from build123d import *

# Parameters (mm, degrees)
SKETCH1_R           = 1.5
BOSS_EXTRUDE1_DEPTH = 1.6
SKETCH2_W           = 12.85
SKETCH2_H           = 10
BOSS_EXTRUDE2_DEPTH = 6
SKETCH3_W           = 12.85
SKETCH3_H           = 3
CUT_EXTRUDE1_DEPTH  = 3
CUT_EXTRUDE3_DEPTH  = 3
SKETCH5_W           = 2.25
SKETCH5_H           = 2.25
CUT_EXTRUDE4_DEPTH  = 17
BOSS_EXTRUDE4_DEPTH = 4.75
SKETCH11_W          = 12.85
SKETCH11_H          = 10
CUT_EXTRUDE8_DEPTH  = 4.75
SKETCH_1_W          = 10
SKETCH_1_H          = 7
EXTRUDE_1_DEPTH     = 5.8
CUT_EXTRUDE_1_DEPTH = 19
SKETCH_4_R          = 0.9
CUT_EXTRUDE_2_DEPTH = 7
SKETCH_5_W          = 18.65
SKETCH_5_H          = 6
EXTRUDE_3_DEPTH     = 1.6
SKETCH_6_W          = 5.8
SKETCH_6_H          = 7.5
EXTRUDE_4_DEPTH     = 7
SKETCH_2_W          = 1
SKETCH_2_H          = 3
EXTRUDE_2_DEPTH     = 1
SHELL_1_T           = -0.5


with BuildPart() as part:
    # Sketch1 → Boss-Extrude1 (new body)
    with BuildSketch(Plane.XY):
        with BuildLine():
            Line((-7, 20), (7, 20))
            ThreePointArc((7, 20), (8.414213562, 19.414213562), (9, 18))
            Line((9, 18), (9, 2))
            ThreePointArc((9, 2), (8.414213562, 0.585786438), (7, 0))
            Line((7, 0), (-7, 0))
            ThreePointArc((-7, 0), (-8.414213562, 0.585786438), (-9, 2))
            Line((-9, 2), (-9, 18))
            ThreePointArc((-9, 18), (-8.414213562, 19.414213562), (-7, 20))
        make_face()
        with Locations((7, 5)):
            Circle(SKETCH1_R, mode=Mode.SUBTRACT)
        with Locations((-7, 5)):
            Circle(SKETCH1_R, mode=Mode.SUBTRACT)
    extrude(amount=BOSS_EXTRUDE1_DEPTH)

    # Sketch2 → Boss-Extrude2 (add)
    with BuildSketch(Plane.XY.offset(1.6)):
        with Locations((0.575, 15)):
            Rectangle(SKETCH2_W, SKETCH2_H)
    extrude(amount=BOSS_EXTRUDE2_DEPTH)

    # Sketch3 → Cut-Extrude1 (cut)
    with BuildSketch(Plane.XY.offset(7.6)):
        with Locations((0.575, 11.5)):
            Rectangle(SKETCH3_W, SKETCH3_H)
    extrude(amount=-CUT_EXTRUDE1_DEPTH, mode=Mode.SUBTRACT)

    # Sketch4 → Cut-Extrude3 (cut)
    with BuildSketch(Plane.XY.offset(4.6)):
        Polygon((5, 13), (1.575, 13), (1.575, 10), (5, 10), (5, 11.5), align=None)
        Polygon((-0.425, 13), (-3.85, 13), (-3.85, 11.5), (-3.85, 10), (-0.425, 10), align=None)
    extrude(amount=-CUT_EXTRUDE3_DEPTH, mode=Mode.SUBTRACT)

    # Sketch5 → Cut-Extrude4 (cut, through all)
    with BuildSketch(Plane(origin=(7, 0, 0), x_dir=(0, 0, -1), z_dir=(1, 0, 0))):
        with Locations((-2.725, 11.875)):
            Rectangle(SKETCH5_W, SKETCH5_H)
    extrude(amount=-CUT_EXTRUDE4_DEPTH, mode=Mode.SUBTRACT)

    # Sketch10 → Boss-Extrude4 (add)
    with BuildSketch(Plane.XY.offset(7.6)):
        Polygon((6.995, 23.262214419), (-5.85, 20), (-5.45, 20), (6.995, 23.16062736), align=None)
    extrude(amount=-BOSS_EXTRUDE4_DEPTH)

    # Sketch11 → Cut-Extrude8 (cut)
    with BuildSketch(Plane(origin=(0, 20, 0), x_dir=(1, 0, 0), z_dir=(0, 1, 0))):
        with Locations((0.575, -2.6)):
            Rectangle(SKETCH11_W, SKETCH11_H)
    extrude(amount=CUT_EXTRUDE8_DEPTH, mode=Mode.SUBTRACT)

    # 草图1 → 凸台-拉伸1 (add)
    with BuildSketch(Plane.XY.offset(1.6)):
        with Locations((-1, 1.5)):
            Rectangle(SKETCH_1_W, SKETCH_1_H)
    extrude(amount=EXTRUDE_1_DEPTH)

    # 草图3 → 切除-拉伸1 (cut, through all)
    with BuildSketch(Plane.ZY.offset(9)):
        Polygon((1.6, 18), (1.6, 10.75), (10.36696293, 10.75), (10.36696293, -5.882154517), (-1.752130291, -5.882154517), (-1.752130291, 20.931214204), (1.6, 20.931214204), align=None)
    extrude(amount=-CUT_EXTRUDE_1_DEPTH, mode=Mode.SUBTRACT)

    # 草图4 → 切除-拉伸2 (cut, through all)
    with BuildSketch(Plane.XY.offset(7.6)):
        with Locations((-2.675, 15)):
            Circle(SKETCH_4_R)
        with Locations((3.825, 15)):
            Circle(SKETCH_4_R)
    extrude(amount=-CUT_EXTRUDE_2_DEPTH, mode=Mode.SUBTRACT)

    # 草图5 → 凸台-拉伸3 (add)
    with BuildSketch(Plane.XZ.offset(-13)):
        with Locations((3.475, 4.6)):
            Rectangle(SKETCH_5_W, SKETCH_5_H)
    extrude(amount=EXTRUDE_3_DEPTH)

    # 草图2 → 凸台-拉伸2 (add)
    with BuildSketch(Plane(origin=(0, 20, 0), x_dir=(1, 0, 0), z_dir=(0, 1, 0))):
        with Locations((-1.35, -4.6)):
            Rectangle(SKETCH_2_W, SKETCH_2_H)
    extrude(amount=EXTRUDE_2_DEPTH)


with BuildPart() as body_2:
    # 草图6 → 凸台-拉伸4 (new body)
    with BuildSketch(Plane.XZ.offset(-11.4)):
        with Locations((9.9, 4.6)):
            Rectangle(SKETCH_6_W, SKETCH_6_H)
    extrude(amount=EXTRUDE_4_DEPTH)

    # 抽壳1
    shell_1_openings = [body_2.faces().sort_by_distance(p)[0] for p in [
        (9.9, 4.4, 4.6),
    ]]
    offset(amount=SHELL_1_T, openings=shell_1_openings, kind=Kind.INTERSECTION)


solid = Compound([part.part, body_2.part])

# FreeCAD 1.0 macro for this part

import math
import FreeCAD as App
import Part
import Sketcher

V = App.Vector
Q = App.Units.Quantity


def faces_at(feature, points):
    """Names of the faces that lie closest to the given points."""
    faces = feature.Shape.Faces
    near = lambda p: min(range(len(faces)), key=lambda i: faces[i].distToShape(Part.Vertex(*p))[0])
    return sorted({f"Face{near(p) + 1}" for p in points})


def add_polygon(sketch, points):
    """Adds a closed chain of lines whose ends are joined by coincident constraints."""
    first, n = sketch.GeometryCount, len(points)
    for a, b in zip(points, points[1:] + points[:1]):
        sketch.addGeometry(Part.LineSegment(App.Vector(*a, 0), App.Vector(*b, 0)), False)
    for i in range(n):
        sketch.addConstraint(Sketcher.Constraint("Coincident", first + i, 2, first + (i + 1) % n, 1))

doc = App.newDocument("Part")
body = doc.addObject("PartDesign::Body", "Body")

sketch1 = body.newObject("Sketcher::SketchObject", "Sketch")
sketch1.AttachmentSupport = (doc.getObject("XY_Plane"), [""])
sketch1.MapMode = "FlatFace"
sketch1.addGeometry([
    Part.LineSegment(V(7, 20, 0), V(-7, 20, 0)),
    Part.ArcOfCircle(Part.Circle(V(-7, 18, 0), V(0, 0, 1), 2), math.radians(90), math.radians(180)),
    Part.LineSegment(V(-9, 18, 0), V(-9, 2, 0)),
    Part.ArcOfCircle(Part.Circle(V(-7, 2, 0), V(0, 0, 1), 2), math.radians(-180), math.radians(-90)),
    Part.LineSegment(V(-7, 0, 0), V(7, 0, 0)),
    Part.ArcOfCircle(Part.Circle(V(7, 2, 0), V(0, 0, 1), 2), math.radians(-90), math.radians(0)),
    Part.LineSegment(V(9, 2, 0), V(9, 18, 0)),
    Part.ArcOfCircle(Part.Circle(V(7, 18, 0), V(0, 0, 1), 2), math.radians(0), math.radians(90)),
    Part.Circle(V(7, 5, 0), V(0, 0, 1), 1.5),
    Part.Circle(V(-7, 5, 0), V(0, 0, 1), 1.5),
], False)
sketch1.addConstraint([
    Sketcher.Constraint("Tangent", 0, 2, 1, 1),
    Sketcher.Constraint("Tangent", 1, 2, 2, 1),
    Sketcher.Constraint("Tangent", 2, 2, 3, 1),
    Sketcher.Constraint("Tangent", 3, 2, 4, 1),
    Sketcher.Constraint("Tangent", 4, 2, 5, 1),
    Sketcher.Constraint("Tangent", 5, 2, 6, 1),
    Sketcher.Constraint("Tangent", 6, 2, 7, 1),
    Sketcher.Constraint("Tangent", 7, 2, 0, 1),
    Sketcher.Constraint("Horizontal", 0),
    Sketcher.Constraint("Vertical", 2),
    Sketcher.Constraint("Horizontal", 4),
    Sketcher.Constraint("Vertical", 6),
    Sketcher.Constraint("Equal", 1, 3),
    Sketcher.Constraint("Equal", 3, 5),
    Sketcher.Constraint("Equal", 5, 7),
    Sketcher.Constraint("Equal", 8, 9),
    Sketcher.Constraint("Symmetric", 3, 2, 4, 2, -1, 1),
    Sketcher.Constraint("Symmetric", 8, 3, 9, 3, -2),
    Sketcher.Constraint("Vertical", 7, 3, 8, 3),
    Sketcher.Constraint("Diameter", 8, Q("3 mm")),
    Sketcher.Constraint("Radius", 1, Q("2 mm")),
    Sketcher.Constraint("DistanceX", 0, 2, 0, 1, Q("14 mm")),
    Sketcher.Constraint("DistanceY", 2, 2, 2, 1, Q("16 mm")),
    Sketcher.Constraint("DistanceY", -1, 1, 8, 3, Q("5 mm")),
])
pad1 = body.newObject("PartDesign::Pad", "Pad")
pad1.Profile = sketch1
pad1.Length = 1.6

sketch2 = body.newObject("Sketcher::SketchObject", "Sketch001")
sketch2.AttachmentSupport = (doc.getObject("XY_Plane"), [""])
sketch2.MapMode = "FlatFace"
sketch2.AttachmentOffset = App.Placement(V(0, 0, 1.6), App.Rotation())
add_polygon(sketch2, [(-6, 20), (-6, 10), (7, 10), (7, 20)])
sketch2.addConstraint([
    Sketcher.Constraint("Vertical", 0),
    Sketcher.Constraint("Horizontal", 1),
    Sketcher.Constraint("Vertical", 2),
    Sketcher.Constraint("Horizontal", 3),
    Sketcher.Constraint("DistanceY", 0, 2, 0, 1, Q("10 mm")),
    Sketcher.Constraint("DistanceY", -1, 1, 0, 2, Q("10 mm")),
    Sketcher.Constraint("DistanceX", -1, 1, 1, 2, Q("7 mm")),
    Sketcher.Constraint("DistanceX", 1, 1, 1, 2, Q("12.85 mm")),
])
pad2 = body.newObject("PartDesign::Pad", "Pad001")
pad2.Profile = sketch2
pad2.Length = 6

sketch3 = body.newObject("Sketcher::SketchObject", "Sketch002")
sketch3.AttachmentSupport = (doc.getObject("XY_Plane"), [""])
sketch3.MapMode = "FlatFace"
sketch3.AttachmentOffset = App.Placement(V(0, 0, 7.6), App.Rotation())
add_polygon(sketch3, [(-5.8, 13), (-5.8, 10), (7, 10), (7, 13)])
sketch3.addConstraint([
    Sketcher.Constraint("Vertical", 0),
    Sketcher.Constraint("Horizontal", 1),
    Sketcher.Constraint("Vertical", 2),
    Sketcher.Constraint("Horizontal", 3),
    Sketcher.Constraint("DistanceY", 0, 2, 0, 1, Q("3 mm")),
    Sketcher.Constraint("DistanceY", -1, 1, 0, 2, Q("10 mm")),
    Sketcher.Constraint("DistanceX", -1, 1, 1, 2, Q("7 mm")),
    Sketcher.Constraint("DistanceX", 1, 1, 1, 2, Q("12.85 mm")),
])
pocket1 = body.newObject("PartDesign::Pocket", "Pocket")
pocket1.Profile = sketch3
pocket1.Length = 3

sketch4 = body.newObject("Sketcher::SketchObject", "Sketch003")
sketch4.AttachmentSupport = (doc.getObject("XY_Plane"), [""])
sketch4.MapMode = "FlatFace"
sketch4.AttachmentOffset = App.Placement(V(0, 0, 4.6), App.Rotation())
add_polygon(sketch4, [(5, 13), (1.6, 13), (1.6, 10), (5, 10)])
add_polygon(sketch4, [(-0.4, 13), (-3.9, 13), (-3.9, 10), (-0.4, 10)])
sketch4.addConstraint([
    Sketcher.Constraint("Horizontal", 0),
    Sketcher.Constraint("Vertical", 1),
    Sketcher.Constraint("Horizontal", 2),
    Sketcher.Constraint("Vertical", 3),
    Sketcher.Constraint("Horizontal", 4),
    Sketcher.Constraint("Vertical", 5),
    Sketcher.Constraint("Horizontal", 6),
    Sketcher.Constraint("Vertical", 7),
    Sketcher.Constraint("Horizontal", 3, 2, 4, 2),
    Sketcher.Constraint("Horizontal", 2, 2, 5, 2),
    Sketcher.Constraint("Equal", 2, 4),
    Sketcher.Constraint("DistanceY", 1, 2, 1, 1, Q("3 mm")),
    Sketcher.Constraint("DistanceY", -1, 1, 0, 2, Q("13 mm")),
    Sketcher.Constraint("DistanceX", -1, 1, 2, 2, Q("5 mm")),
    Sketcher.Constraint("DistanceX", 6, 2, 1, 2, Q("2 mm")),
    Sketcher.Constraint("DistanceX", 0, 2, 0, 1, Q("3.425 mm")),
])
pocket2 = body.newObject("PartDesign::Pocket", "Pocket001")
pocket2.Profile = sketch4
pocket2.Length = 3

sketch5 = body.newObject("Sketcher::SketchObject", "Sketch004")
sketch5.AttachmentSupport = (doc.getObject("YZ_Plane"), [""])
sketch5.MapMode = "FlatFace"
sketch5.AttachmentOffset = App.Placement(V(0, 0, 7), App.Rotation())
add_polygon(sketch5, [(13, 3.9), (10.8, 3.9), (10.8, 1.6), (13, 1.6)])
sketch5.addConstraint([
    Sketcher.Constraint("Horizontal", 0),
    Sketcher.Constraint("Vertical", 1),
    Sketcher.Constraint("Horizontal", 2),
    Sketcher.Constraint("Vertical", 3),
    Sketcher.Constraint("Equal", 2, 1),
    Sketcher.Constraint("DistanceX", -1, 1, 2, 2, Q("13 mm")),
    Sketcher.Constraint("DistanceX", 0, 2, 0, 1, Q("2.25 mm")),
    Sketcher.Constraint("DistanceY", -1, 1, 1, 2, Q("1.6 mm")),
])
pocket3 = body.newObject("PartDesign::Pocket", "Pocket002")
pocket3.Profile = sketch5
pocket3.Type = "ThroughAll"

sketch6 = body.newObject("Sketcher::SketchObject", "Sketch005")
sketch6.AttachmentSupport = (doc.getObject("XY_Plane"), [""])
sketch6.MapMode = "FlatFace"
sketch6.AttachmentOffset = App.Placement(V(0, 0, 7.6), App.Rotation())
add_polygon(sketch6, [(7, 23.26), (-5.85, 20), (-5.45, 20), (7, 23.16)])
sketch6.addConstraint([
    Sketcher.Constraint("Horizontal", 1),
    Sketcher.Constraint("Vertical", 3),
    Sketcher.Constraint("Parallel", 0, 2),
    Sketcher.Constraint("DistanceX", 1, 1, 1, 2, Q("0.4 mm")),
    Sketcher.Constraint("DistanceY", -1, 1, 0, 2, Q("20 mm")),
    Sketcher.Constraint("Angle", 0, Q("-165.75 deg")),
    Sketcher.Constraint("DistanceX", 0, 2, -1, 1, Q("5.85 mm")),
    Sketcher.Constraint("DistanceX", -1, 1, 2, 2, Q("6.995 mm")),
])
pad3 = body.newObject("PartDesign::Pad", "Pad002")
pad3.Profile = sketch6
pad3.Length = 4.75
pad3.Reversed = True

sketch7 = body.newObject("Sketcher::SketchObject", "Sketch006")
sketch7.AttachmentSupport = (doc.getObject("XZ_Plane"), [""])
sketch7.MapMode = "FlatFace"
sketch7.AttachmentOffset = App.Placement(V(0, 0, -20), App.Rotation())
add_polygon(sketch7, [(-6, -2), (-6, 8), (7, 8), (7, -2)])
sketch7.addConstraint([
    Sketcher.Constraint("Vertical", 0),
    Sketcher.Constraint("Horizontal", 1),
    Sketcher.Constraint("Vertical", 2),
    Sketcher.Constraint("Horizontal", 3),
    Sketcher.Constraint("DistanceY", 0, 1, 0, 2, Q("10 mm")),
    Sketcher.Constraint("DistanceX", -1, 1, 1, 2, Q("7 mm")),
    Sketcher.Constraint("DistanceX", 1, 1, 1, 2, Q("12.85 mm")),
    Sketcher.Constraint("DistanceY", -1, 1, 0, 2, Q("7.6 mm")),
])
pocket4 = body.newObject("PartDesign::Pocket", "Pocket003")
pocket4.Profile = sketch7
pocket4.Length = 4.75

sketch8 = body.newObject("Sketcher::SketchObject", "Sketch007")
sketch8.AttachmentSupport = (doc.getObject("XY_Plane"), [""])
sketch8.MapMode = "FlatFace"
sketch8.AttachmentOffset = App.Placement(V(0, 0, 1.6), App.Rotation())
add_polygon(sketch8, [(-6, 5), (-6, -2), (4, -2), (4, 5)])
sketch8.addConstraint([
    Sketcher.Constraint("Vertical", 0),
    Sketcher.Constraint("Horizontal", 1),
    Sketcher.Constraint("Vertical", 2),
    Sketcher.Constraint("Horizontal", 3),
    Sketcher.Constraint("DistanceX", 1, 1, 1, 2, Q("10 mm")),
    Sketcher.Constraint("DistanceY", 0, 2, 0, 1, Q("7 mm")),
    Sketcher.Constraint("DistanceX", 0, 2, -1, 1, Q("6 mm")),
    Sketcher.Constraint("DistanceY", 0, 2, -1, 1, Q("2 mm")),
])
pad4 = body.newObject("PartDesign::Pad", "Pad003")
pad4.Profile = sketch8
pad4.Length = 5.8

sketch9 = body.newObject("Sketcher::SketchObject", "Sketch008")
sketch9.AttachmentSupport = (doc.getObject("YZ_Plane"), [""])
sketch9.MapMode = "FlatFace"
sketch9.AttachmentOffset = App.Placement(V(0, 0, -9), App.Rotation())
add_polygon(sketch9, [(10.8, 1.6), (20.9, 1.6), (20.9, -1.8), (-5.9, -1.8), (-5.9, 10.4), (10.8, 10.4)])
sketch9.addConstraint([
    Sketcher.Constraint("Horizontal", 0),
    Sketcher.Constraint("Vertical", 1),
    Sketcher.Constraint("Horizontal", 2),
    Sketcher.Constraint("Vertical", 3),
    Sketcher.Constraint("Horizontal", 4),
    Sketcher.Constraint("Vertical", 5),
    Sketcher.Constraint("DistanceY", -1, 1, 0, 2, Q("1.6 mm")),
    Sketcher.Constraint("DistanceX", -1, 1, 4, 2, Q("10.75 mm")),
    Sketcher.Constraint("DistanceX", 2, 2, 2, 1, Q("26.813369 mm")),
    Sketcher.Constraint("DistanceY", 1, 2, 1, 1, Q("3.35213 mm")),
    Sketcher.Constraint("DistanceX", 0, 1, 0, 2, Q("10.181214 mm")),
    Sketcher.Constraint("DistanceY", 3, 1, 3, 2, Q("12.119093 mm")),
])
pocket5 = body.newObject("PartDesign::Pocket", "Pocket004")
pocket5.Profile = sketch9
pocket5.Type = "ThroughAll"
pocket5.Reversed = True

sketch10 = body.newObject("Sketcher::SketchObject", "Sketch009")
sketch10.AttachmentSupport = (doc.getObject("XY_Plane"), [""])
sketch10.MapMode = "FlatFace"
sketch10.AttachmentOffset = App.Placement(V(0, 0, 7.6), App.Rotation())
sketch10.addGeometry([
    Part.Circle(V(-2.7, 15, 0), V(0, 0, 1), 0.9),
    Part.Circle(V(3.8, 15, 0), V(0, 0, 1), 0.9),
], False)
sketch10.addConstraint([
    Sketcher.Constraint("Equal", 0, 1),
    Sketcher.Constraint("Horizontal", 0, 3, 1, 3),
    Sketcher.Constraint("Diameter", 0, Q("1.8 mm")),
    Sketcher.Constraint("DistanceY", -1, 1, 0, 3, Q("15 mm")),
    Sketcher.Constraint("DistanceX", 0, 3, 1, 3, Q("6.5 mm")),
    Sketcher.Constraint("DistanceX", 0, 3, -1, 1, Q("2.675 mm")),
])
pocket6 = body.newObject("PartDesign::Pocket", "Pocket005")
pocket6.Profile = sketch10
pocket6.Type = "ThroughAll"

sketch11 = body.newObject("Sketcher::SketchObject", "Sketch010")
sketch11.AttachmentSupport = (doc.getObject("XZ_Plane"), [""])
sketch11.MapMode = "FlatFace"
sketch11.AttachmentOffset = App.Placement(V(0, 0, -13), App.Rotation())
add_polygon(sketch11, [(-6, 8), (-6, 2), (13, 2), (13, 8)])
sketch11.addConstraint([
    Sketcher.Constraint("Vertical", 0),
    Sketcher.Constraint("Horizontal", 1),
    Sketcher.Constraint("Vertical", 2),
    Sketcher.Constraint("Horizontal", 3),
    Sketcher.Constraint("DistanceY", 0, 2, 0, 1, Q("6 mm")),
    Sketcher.Constraint("DistanceX", 1, 1, 1, 2, Q("18.65 mm")),
    Sketcher.Constraint("DistanceY", -1, 1, 0, 2, Q("1.6 mm")),
    Sketcher.Constraint("DistanceX", -1, 1, 1, 2, Q("12.8 mm")),
])
pad5 = body.newObject("PartDesign::Pad", "Pad004")
pad5.Profile = sketch11
pad5.Length = 1.6

sketch12 = body.newObject("Sketcher::SketchObject", "Sketch011")
sketch12.AttachmentSupport = (doc.getObject("XZ_Plane"), [""])
sketch12.MapMode = "FlatFace"
sketch12.AttachmentOffset = App.Placement(V(0, 0, -20), App.Rotation())
add_polygon(sketch12, [(-1.9, 3.1), (-1.9, 6.1), (-0.8, 6.1), (-0.8, 3.1)])
sketch12.addConstraint([
    Sketcher.Constraint("Vertical", 0),
    Sketcher.Constraint("Horizontal", 1),
    Sketcher.Constraint("Vertical", 2),
    Sketcher.Constraint("Horizontal", 3),
    Sketcher.Constraint("DistanceX", 1, 1, 1, 2, Q("1 mm")),
    Sketcher.Constraint("DistanceY", 0, 1, 0, 2, Q("3 mm")),
    Sketcher.Constraint("DistanceY", -1, 1, 0, 2, Q("6.1 mm")),
    Sketcher.Constraint("DistanceX", 0, 2, -1, 1, Q("1.85 mm")),
])
pad6 = body.newObject("PartDesign::Pad", "Pad005")
pad6.Profile = sketch12
pad6.Length = 1
pad6.Reversed = True
body2 = doc.addObject("PartDesign::Body", "Body001")

sketch13 = body2.newObject("Sketcher::SketchObject", "Sketch012")
sketch13.AttachmentSupport = (doc.getObject("XZ_Plane001"), [""])
sketch13.MapMode = "FlatFace"
sketch13.AttachmentOffset = App.Placement(V(0, 0, -11.4), App.Rotation())
add_polygon(sketch13, [(7, 8), (7, 1), (13, 1), (13, 8)])
sketch13.addConstraint([
    Sketcher.Constraint("Vertical", 0),
    Sketcher.Constraint("Horizontal", 1),
    Sketcher.Constraint("Vertical", 2),
    Sketcher.Constraint("Horizontal", 3),
    Sketcher.Constraint("DistanceX", 1, 1, 1, 2, Q("5.8 mm")),
    Sketcher.Constraint("DistanceY", 0, 2, 0, 1, Q("7.5 mm")),
    Sketcher.Constraint("DistanceX", -1, 1, 0, 2, Q("7 mm")),
    Sketcher.Constraint("DistanceY", -1, 1, 0, 2, Q("0.85 mm")),
])
pad7 = body2.newObject("PartDesign::Pad", "Pad006")
pad7.Profile = sketch13
pad7.Length = 7
doc.recompute()

thickness = body2.newObject("PartDesign::Thickness", "Thickness")
thickness.Base = (pad7, faces_at(pad7, [(9.9, 4.4, 4.6)]))
thickness.Value = 0.5
thickness.Reversed = True
thickness.Join = "Intersection"

doc.recompute()
